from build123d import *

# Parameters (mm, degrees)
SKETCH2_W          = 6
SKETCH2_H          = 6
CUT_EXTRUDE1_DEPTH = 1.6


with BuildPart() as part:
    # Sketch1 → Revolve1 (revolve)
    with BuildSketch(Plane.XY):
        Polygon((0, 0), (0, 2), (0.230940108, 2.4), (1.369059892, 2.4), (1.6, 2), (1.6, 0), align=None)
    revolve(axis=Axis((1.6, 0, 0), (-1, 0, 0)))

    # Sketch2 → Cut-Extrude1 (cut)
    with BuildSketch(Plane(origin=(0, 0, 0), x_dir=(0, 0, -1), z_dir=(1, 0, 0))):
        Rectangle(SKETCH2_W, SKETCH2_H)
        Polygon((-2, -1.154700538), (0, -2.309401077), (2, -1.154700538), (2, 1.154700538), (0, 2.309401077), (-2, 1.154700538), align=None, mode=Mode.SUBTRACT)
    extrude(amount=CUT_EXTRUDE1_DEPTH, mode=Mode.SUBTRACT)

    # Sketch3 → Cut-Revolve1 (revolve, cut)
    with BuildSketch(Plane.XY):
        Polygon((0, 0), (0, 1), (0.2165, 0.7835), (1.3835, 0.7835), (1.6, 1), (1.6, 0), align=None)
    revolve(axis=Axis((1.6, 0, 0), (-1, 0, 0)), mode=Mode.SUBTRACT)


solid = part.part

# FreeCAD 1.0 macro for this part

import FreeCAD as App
import Part
import Sketcher
from FreeCAD import Vector
Q = App.Units.Quantity

doc = App.newDocument("Part")
body = doc.addObject("PartDesign::Body", "Body")

sketch1 = body.newObject("Sketcher::SketchObject", "Sketch")
sketch1.AttachmentSupport = (doc.getObject("XY_Plane"), [""])
sketch1.MapMode = "FlatFace"
sketch1.addGeometry([
    Part.LineSegment(Vector(0, 2, 0), Vector(0, 0, 0)),
    Part.LineSegment(Vector(0, 0, 0), Vector(1.6, 0, 0)),
    Part.LineSegment(Vector(1.6, 0, 0), Vector(1.6, 2, 0)),
    Part.LineSegment(Vector(1.6, 2, 0), Vector(1.37, 2.4, 0)),
    Part.LineSegment(Vector(1.37, 2.4, 0), Vector(0.23, 2.4, 0)),
    Part.LineSegment(Vector(0.23, 2.4, 0), Vector(0, 2, 0)),
], False)
sketch1.addConstraint([
    Sketcher.Constraint("Coincident", 0, 2, 1, 1),
    Sketcher.Constraint("Coincident", 1, 2, 2, 1),
    Sketcher.Constraint("Coincident", 2, 2, 3, 1),
    Sketcher.Constraint("Coincident", 3, 2, 4, 1),
    Sketcher.Constraint("Coincident", 4, 2, 5, 1),
    Sketcher.Constraint("Coincident", 5, 2, 0, 1),
    Sketcher.Constraint("Vertical", 0),
    Sketcher.Constraint("Horizontal", 1),
    Sketcher.Constraint("Vertical", 2),
    Sketcher.Constraint("Horizontal", 4),
    Sketcher.Constraint("Coincident", 0, 2, -1, 1),
    Sketcher.Constraint("Horizontal", 2, 2, 5, 2),
    Sketcher.Constraint("Equal", 3, 5),
    Sketcher.Constraint("DistanceY", 0, 2, 0, 1, 2.0),
    Sketcher.Constraint("Angle", 3, Q("120 deg")),
    Sketcher.Constraint("DistanceX", 1, 1, 1, 2, 1.6),
    Sketcher.Constraint("DistanceY", -1, 1, 3, 2, 2.4),
])
revolution = body.newObject("PartDesign::Revolution", "Revolution")
revolution.Profile = sketch1
revolution.ReferenceAxis = (sketch1, ["H_Axis"])
revolution.Angle = 360

sketch2 = body.newObject("Sketcher::SketchObject", "Sketch001")
sketch2.AttachmentSupport = (doc.getObject("YZ_Plane"), [""])
sketch2.MapMode = "FlatFace"
sketch2.addGeometry([
    Part.LineSegment(Vector(3, 3, 0), Vector(-3, 3, 0)),
    Part.LineSegment(Vector(-3, 3, 0), Vector(-3, -3, 0)),
    Part.LineSegment(Vector(-3, -3, 0), Vector(3, -3, 0)),
    Part.LineSegment(Vector(3, -3, 0), Vector(3, 3, 0)),
    Part.LineSegment(Vector(-2.3, 0, 0), Vector(-1.2, 2, 0)),
    Part.LineSegment(Vector(-1.2, 2, 0), Vector(1.2, 2, 0)),
    Part.LineSegment(Vector(1.2, 2, 0), Vector(2.3, 0, 0)),
    Part.LineSegment(Vector(2.3, 0, 0), Vector(1.2, -2, 0)),
    Part.LineSegment(Vector(1.2, -2, 0), Vector(-1.2, -2, 0)),
    Part.LineSegment(Vector(-1.2, -2, 0), Vector(-2.3, 0, 0)),
], False)
sketch2.addConstraint([
    Sketcher.Constraint("Coincident", 0, 2, 1, 1),
    Sketcher.Constraint("Coincident", 1, 2, 2, 1),
    Sketcher.Constraint("Coincident", 2, 2, 3, 1),
    Sketcher.Constraint("Coincident", 3, 2, 0, 1),
    Sketcher.Constraint("Coincident", 4, 2, 5, 1),
    Sketcher.Constraint("Coincident", 5, 2, 6, 1),
    Sketcher.Constraint("Coincident", 6, 2, 7, 1),
    Sketcher.Constraint("Coincident", 7, 2, 8, 1),
    Sketcher.Constraint("Coincident", 8, 2, 9, 1),
    Sketcher.Constraint("Coincident", 9, 2, 4, 1),
    Sketcher.Constraint("Horizontal", 0),
    Sketcher.Constraint("Vertical", 1),
    Sketcher.Constraint("Horizontal", 2),
    Sketcher.Constraint("Vertical", 3),
    Sketcher.Constraint("Horizontal", 5),
    Sketcher.Constraint("Horizontal", 8),
    Sketcher.Constraint("Symmetric", 0, 2, 2, 2, -1, 1),
    Sketcher.Constraint("Symmetric", 4, 2, 7, 2, -1, 1),
    Sketcher.Constraint("Symmetric", 6, 2, 9, 2, -1, 1),
    Sketcher.Constraint("PointOnObject", 6, 2, -1),
    Sketcher.Constraint("Parallel", 6, 9),
    Sketcher.Constraint("Vertical", 5, 2, 7, 2),
    Sketcher.Constraint("Equal", 2, 1),
    Sketcher.Constraint("DistanceX", 0, 2, 0, 1, 6.0),
    Sketcher.Constraint("Angle", 4, Q("60 deg")),
    Sketcher.Constraint("DistanceY", -1, 1, 4, 2, 2.0),
    Sketcher.Constraint("DistanceX", 5, 1, 5, 2, 2.309401),
])
pocket1 = body.newObject("PartDesign::Pocket", "Pocket")
pocket1.Profile = sketch2
pocket1.Length = 1.6
pocket1.Reversed = True

sketch3 = body.newObject("Sketcher::SketchObject", "Sketch002")
sketch3.AttachmentSupport = (doc.getObject("XY_Plane"), [""])
sketch3.MapMode = "FlatFace"
sketch3.addGeometry([
    Part.LineSegment(Vector(0, 1, 0), Vector(0, 0, 0)),
    Part.LineSegment(Vector(0, 0, 0), Vector(1.6, 0, 0)),
    Part.LineSegment(Vector(1.6, 0, 0), Vector(1.6, 1, 0)),
    Part.LineSegment(Vector(1.6, 1, 0), Vector(1.38, 0.78, 0)),
    Part.LineSegment(Vector(1.38, 0.78, 0), Vector(0.22, 0.78, 0)),
    Part.LineSegment(Vector(0.22, 0.78, 0), Vector(0, 1, 0)),
], False)
sketch3.addConstraint([
    Sketcher.Constraint("Coincident", 0, 2, 1, 1),
    Sketcher.Constraint("Coincident", 1, 2, 2, 1),
    Sketcher.Constraint("Coincident", 2, 2, 3, 1),
    Sketcher.Constraint("Coincident", 3, 2, 4, 1),
    Sketcher.Constraint("Coincident", 4, 2, 5, 1),
    Sketcher.Constraint("Coincident", 5, 2, 0, 1),
    Sketcher.Constraint("Vertical", 0),
    Sketcher.Constraint("Horizontal", 1),
    Sketcher.Constraint("Vertical", 2),
    Sketcher.Constraint("Horizontal", 4),
    Sketcher.Constraint("Coincident", 0, 2, -1, 1),
    Sketcher.Constraint("Perpendicular", 3, 5),
    Sketcher.Constraint("Horizontal", 2, 2, 5, 2),
    Sketcher.Constraint("Equal", 3, 5),
    Sketcher.Constraint("DistanceY", 0, 2, 0, 1, 1.0),
    Sketcher.Constraint("DistanceX", 1, 1, 1, 2, 1.6),
    Sketcher.Constraint("DistanceX", 4, 2, 4, 1, 1.167),
])
groove = body.newObject("PartDesign::Groove", "Groove")
groove.Profile = sketch3
groove.ReferenceAxis = (sketch3, ["H_Axis"])
groove.Angle = 360

doc.recompute()
